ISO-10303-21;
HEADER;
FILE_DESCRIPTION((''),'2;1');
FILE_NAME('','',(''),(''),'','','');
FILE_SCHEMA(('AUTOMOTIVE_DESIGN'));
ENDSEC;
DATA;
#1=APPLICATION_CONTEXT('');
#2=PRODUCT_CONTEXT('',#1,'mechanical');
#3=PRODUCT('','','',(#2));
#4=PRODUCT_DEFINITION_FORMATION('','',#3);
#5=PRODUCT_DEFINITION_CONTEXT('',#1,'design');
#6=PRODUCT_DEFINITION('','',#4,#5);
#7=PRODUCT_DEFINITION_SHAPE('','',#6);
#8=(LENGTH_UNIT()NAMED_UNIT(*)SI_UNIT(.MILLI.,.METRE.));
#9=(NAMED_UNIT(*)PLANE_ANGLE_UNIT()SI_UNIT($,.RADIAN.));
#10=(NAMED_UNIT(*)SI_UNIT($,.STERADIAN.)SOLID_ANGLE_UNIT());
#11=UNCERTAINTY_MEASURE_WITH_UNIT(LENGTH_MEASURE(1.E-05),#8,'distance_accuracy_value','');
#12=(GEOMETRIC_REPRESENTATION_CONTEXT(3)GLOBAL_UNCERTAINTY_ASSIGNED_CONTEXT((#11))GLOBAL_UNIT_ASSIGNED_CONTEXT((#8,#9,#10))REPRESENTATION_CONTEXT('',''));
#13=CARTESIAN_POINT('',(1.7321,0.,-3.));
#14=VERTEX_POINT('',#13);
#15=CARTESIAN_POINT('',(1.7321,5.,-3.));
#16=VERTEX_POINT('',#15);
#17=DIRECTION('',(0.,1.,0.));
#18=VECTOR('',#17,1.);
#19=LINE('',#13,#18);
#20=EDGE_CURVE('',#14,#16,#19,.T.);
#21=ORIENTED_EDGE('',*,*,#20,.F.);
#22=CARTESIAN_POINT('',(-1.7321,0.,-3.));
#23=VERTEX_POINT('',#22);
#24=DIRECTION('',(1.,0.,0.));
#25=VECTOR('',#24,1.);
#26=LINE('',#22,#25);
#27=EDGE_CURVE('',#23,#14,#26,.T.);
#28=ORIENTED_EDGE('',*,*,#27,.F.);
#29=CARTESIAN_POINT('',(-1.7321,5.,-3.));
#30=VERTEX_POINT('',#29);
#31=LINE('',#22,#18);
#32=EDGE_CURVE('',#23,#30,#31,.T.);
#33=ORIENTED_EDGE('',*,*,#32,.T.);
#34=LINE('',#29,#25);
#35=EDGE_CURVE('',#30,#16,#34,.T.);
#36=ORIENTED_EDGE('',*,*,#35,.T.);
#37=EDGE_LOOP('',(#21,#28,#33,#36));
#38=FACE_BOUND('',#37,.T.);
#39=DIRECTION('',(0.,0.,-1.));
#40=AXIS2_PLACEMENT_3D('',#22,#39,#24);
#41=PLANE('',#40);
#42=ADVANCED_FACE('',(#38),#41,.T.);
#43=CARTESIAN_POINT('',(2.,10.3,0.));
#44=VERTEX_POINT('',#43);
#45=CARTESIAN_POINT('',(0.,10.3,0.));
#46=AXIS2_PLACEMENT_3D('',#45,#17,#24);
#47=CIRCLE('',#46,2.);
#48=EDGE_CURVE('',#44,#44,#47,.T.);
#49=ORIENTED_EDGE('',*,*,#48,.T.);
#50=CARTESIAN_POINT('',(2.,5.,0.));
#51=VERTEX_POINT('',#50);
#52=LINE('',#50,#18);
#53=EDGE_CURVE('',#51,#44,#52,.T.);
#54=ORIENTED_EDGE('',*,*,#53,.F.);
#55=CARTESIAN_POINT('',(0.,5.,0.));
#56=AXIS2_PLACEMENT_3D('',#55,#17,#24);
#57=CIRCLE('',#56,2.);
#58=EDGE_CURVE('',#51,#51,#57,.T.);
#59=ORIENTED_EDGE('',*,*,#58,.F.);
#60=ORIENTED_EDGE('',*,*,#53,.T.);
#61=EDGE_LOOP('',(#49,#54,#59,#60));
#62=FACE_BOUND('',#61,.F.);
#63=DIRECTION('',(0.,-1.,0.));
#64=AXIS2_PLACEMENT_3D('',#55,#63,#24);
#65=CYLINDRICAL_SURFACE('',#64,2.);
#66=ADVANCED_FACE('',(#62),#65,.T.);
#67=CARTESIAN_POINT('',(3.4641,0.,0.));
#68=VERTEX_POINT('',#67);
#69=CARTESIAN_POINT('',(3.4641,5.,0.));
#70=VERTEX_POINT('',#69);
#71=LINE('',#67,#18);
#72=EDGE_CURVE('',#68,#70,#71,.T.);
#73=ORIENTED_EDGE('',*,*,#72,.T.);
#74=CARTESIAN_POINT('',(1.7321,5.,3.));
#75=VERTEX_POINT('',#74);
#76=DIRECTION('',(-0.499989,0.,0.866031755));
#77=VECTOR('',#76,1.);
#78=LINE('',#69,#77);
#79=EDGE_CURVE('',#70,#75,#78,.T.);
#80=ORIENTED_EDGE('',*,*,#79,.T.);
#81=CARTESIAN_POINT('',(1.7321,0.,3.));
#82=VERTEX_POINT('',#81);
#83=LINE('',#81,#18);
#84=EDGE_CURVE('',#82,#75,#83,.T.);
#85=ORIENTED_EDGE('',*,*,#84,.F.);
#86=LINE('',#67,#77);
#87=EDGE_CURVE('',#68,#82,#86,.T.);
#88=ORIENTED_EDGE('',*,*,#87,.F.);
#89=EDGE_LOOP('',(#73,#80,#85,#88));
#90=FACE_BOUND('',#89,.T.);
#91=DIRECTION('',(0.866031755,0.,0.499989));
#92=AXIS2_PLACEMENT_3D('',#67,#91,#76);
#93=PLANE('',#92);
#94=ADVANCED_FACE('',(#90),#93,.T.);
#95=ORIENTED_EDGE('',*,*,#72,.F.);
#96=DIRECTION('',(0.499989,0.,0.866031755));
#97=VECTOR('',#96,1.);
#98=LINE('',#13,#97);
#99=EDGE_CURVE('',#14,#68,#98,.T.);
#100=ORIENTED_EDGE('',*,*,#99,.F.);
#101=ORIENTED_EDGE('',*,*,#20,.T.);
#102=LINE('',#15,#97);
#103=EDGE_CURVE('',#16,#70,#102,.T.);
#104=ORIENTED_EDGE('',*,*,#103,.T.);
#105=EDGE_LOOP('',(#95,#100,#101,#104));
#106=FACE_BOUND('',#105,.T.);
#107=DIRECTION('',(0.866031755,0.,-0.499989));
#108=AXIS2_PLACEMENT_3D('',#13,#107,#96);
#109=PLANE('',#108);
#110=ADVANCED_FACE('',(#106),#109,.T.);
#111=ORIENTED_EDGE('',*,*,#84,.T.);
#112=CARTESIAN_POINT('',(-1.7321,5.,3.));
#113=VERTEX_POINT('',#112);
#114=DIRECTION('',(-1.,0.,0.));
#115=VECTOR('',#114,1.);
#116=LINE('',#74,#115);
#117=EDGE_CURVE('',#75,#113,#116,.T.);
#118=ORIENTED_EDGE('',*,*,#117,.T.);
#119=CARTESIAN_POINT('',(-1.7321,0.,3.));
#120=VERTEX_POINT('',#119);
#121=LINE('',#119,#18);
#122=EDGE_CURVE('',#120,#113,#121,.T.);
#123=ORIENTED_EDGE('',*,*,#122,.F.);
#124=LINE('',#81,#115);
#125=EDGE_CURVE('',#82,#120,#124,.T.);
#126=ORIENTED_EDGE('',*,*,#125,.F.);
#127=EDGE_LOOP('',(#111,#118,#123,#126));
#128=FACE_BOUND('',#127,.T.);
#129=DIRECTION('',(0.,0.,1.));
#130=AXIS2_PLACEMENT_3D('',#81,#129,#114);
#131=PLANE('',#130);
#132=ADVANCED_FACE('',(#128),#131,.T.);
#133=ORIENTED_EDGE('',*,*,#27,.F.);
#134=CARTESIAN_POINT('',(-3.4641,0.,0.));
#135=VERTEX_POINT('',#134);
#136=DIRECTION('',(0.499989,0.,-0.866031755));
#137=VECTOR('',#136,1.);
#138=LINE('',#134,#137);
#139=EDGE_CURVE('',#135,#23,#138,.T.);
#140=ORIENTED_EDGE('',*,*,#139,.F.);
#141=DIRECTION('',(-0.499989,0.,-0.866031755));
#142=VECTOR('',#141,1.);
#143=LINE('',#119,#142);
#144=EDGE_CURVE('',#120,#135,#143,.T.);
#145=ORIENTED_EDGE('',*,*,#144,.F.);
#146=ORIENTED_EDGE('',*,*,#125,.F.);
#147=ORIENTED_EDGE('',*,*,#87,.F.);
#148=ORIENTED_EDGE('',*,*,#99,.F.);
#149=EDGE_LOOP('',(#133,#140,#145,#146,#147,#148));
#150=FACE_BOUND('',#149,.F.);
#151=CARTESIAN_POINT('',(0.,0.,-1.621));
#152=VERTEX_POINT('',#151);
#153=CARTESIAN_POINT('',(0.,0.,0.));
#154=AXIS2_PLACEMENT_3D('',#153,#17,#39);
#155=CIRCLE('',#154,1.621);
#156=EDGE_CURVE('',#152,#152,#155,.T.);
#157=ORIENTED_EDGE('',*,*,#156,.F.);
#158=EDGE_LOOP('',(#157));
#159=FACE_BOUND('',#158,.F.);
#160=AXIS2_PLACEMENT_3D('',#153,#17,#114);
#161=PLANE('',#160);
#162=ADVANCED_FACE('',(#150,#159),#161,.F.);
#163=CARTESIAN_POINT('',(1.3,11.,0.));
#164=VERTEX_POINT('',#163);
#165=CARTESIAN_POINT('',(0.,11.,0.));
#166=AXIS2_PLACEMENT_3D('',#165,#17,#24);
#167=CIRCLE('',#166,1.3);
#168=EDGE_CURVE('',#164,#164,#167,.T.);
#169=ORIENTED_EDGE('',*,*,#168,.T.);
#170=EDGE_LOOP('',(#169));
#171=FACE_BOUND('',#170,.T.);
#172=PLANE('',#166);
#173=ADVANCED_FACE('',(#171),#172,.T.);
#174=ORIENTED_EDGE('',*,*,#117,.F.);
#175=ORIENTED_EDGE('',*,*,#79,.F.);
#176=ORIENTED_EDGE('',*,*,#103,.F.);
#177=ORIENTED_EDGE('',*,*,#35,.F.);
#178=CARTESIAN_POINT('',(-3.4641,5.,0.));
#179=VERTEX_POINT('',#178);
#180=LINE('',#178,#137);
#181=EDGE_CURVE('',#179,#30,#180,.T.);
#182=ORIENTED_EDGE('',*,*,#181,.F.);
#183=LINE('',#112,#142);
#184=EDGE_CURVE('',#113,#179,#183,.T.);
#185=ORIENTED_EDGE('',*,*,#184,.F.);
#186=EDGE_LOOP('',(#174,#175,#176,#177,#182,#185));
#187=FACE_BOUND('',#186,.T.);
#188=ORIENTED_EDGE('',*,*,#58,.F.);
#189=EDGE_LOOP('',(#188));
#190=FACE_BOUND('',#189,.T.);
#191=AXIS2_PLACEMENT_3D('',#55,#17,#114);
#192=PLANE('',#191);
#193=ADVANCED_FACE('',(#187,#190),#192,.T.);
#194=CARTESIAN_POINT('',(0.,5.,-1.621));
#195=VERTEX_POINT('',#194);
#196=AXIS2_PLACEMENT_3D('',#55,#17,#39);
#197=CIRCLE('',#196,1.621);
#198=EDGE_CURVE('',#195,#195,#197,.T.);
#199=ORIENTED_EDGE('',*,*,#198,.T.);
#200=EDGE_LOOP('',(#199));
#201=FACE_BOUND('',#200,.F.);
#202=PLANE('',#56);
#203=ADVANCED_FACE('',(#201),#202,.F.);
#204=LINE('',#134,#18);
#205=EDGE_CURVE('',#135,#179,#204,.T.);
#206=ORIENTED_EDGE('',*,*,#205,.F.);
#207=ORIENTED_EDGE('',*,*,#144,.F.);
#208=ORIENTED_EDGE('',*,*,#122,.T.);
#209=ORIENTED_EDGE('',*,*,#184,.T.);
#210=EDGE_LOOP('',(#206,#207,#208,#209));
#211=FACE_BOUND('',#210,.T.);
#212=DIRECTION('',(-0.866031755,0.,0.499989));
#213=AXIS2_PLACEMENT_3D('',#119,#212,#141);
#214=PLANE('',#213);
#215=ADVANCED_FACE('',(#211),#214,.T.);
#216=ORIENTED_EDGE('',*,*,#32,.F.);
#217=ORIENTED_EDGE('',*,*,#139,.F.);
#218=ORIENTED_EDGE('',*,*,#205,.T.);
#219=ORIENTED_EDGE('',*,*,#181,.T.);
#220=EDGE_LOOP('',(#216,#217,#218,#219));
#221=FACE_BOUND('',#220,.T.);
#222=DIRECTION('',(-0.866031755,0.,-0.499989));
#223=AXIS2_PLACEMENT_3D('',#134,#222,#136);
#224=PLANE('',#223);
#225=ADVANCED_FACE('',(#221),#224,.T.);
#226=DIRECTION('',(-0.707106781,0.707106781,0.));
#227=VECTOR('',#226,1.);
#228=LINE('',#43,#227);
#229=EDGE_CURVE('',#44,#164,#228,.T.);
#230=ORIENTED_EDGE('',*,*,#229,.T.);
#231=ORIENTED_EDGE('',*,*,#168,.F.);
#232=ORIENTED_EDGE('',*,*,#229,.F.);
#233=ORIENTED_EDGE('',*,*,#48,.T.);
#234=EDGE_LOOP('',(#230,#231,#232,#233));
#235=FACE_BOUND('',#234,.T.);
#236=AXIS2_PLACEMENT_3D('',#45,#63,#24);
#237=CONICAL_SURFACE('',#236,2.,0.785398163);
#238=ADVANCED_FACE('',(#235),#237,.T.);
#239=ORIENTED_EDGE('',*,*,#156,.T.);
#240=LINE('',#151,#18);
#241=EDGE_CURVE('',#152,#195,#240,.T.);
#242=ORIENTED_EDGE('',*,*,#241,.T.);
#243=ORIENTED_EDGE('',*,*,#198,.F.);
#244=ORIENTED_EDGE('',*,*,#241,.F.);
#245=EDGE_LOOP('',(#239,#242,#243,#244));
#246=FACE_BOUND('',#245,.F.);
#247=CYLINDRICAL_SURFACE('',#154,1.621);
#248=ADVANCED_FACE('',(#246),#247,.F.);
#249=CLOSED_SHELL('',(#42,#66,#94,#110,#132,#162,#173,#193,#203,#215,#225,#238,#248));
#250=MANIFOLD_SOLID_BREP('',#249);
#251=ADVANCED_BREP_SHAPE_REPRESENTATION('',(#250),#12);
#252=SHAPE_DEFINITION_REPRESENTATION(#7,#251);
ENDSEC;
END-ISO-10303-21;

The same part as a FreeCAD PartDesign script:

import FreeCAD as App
import Part
import Sketcher
Q = App.Units.Quantity


def edges_at(feature, points):
    """Names of the edges that pass closest to the given points."""
    edges = feature.Shape.Edges
    near = lambda p: min(range(len(edges)), key=lambda i: edges[i].distToShape(Part.Vertex(*p))[0])
    return sorted({f"Edge{near(p) + 1}" for p in points})

doc = App.newDocument("Part")
body = doc.addObject("PartDesign::Body", "Body")

# Sketch on XZ plane
sketch1 = body.newObject("Sketcher::SketchObject", "Sketch")
sketch1.AttachmentSupport = (doc.getObject("XZ_Plane"), [""])
sketch1.MapMode = "FlatFace"
sketch1.addGeometry([
    Part.LineSegment(App.Vector(3.5, 0, 0), App.Vector(1.7, -3, 0)),  # 0
    Part.LineSegment(App.Vector(1.7, -3, 0), App.Vector(-1.7, -3, 0)),  # 1
    Part.LineSegment(App.Vector(-1.7, -3, 0), App.Vector(-3.5, 0, 0)),  # 2
    Part.LineSegment(App.Vector(-3.5, 0, 0), App.Vector(-1.7, 3, 0)),  # 3
    Part.LineSegment(App.Vector(-1.7, 3, 0), App.Vector(1.7, 3, 0)),  # 4
    Part.LineSegment(App.Vector(1.7, 3, 0), App.Vector(3.5, 0, 0)),  # 5
], False)
sketch1.addConstraint([
    Sketcher.Constraint("Coincident", 0, 2, 1, 1),
    Sketcher.Constraint("Coincident", 1, 2, 2, 1),
    Sketcher.Constraint("Coincident", 2, 2, 3, 1),
    Sketcher.Constraint("Coincident", 3, 2, 4, 1),
    Sketcher.Constraint("Coincident", 4, 2, 5, 1),
    Sketcher.Constraint("Coincident", 5, 2, 0, 1),
    Sketcher.Constraint("Horizontal", 1),
    Sketcher.Constraint("Horizontal", 4),
    Sketcher.Constraint("Symmetric", 0, 2, 3, 2, -1, 1),
    Sketcher.Constraint("Symmetric", 2, 2, 5, 2, -1, 1),
    Sketcher.Constraint("PointOnObject", 2, 2, -1),
    Sketcher.Constraint("Parallel", 2, 5),
    Sketcher.Constraint("Vertical", 1, 2, 3, 2),
    Sketcher.Constraint("DistanceY", 0, 2, -1, 1, 3.0),
    Sketcher.Constraint("Angle", 0, Q("-119.9993 deg")),
    Sketcher.Constraint("DistanceX", 1, 2, 1, 1, 3.4642),
])
pad1 = body.newObject("PartDesign::Pad", "Pad")
pad1.Profile = sketch1
pad1.Length = 5
pad1.Reversed = True

# Sketch on XZ plane
sketch2 = body.newObject("Sketcher::SketchObject", "Sketch001")
sketch2.AttachmentSupport = (doc.getObject("XZ_Plane"), [""])
sketch2.MapMode = "FlatFace"
sketch2.addGeometry(Part.Circle(App.Vector(0, 0, 0), App.Vector(0, 0, 1), 1.6), False)
sketch2.addConstraint([
    Sketcher.Constraint("Coincident", 0, 3, -1, 1),
    Sketcher.Constraint("Diameter", 0, 3.242),
])
doc.recompute()
hole = body.newObject("PartDesign::Hole", "Hole")
hole.Profile = sketch2
hole.ThreadType = "None"
hole.Diameter = 3.242
hole.DepthType = "Dimension"
hole.Depth = 11.8
hole.DrillPoint = "Angled"
hole.DrillPointAngle = 118

# Sketch on XZ plane
sketch3 = body.newObject("Sketcher::SketchObject", "Sketch002")
sketch3.AttachmentSupport = (doc.getObject("XZ_Plane"), [""])
sketch3.MapMode = "FlatFace"
sketch3.AttachmentOffset = App.Placement(App.Vector(0, 0, -5), App.Rotation())
sketch3.addGeometry(Part.Circle(App.Vector(0, 0, 0), App.Vector(0, 0, 1), 2), False)
sketch3.addConstraint([
    Sketcher.Constraint("Coincident", 0, 3, -1, 1),
    Sketcher.Constraint("Diameter", 0, 4.0),
])
pad2 = body.newObject("PartDesign::Pad", "Pad001")
pad2.Profile = sketch3
pad2.Length = 6
pad2.Reversed = True
doc.recompute()

chamfer = body.newObject("PartDesign::Chamfer", "Chamfer")
chamfer.Base = (pad2, edges_at(pad2, [(-2, 11, 0)]))
chamfer.Size = 0.7

doc.recompute()
